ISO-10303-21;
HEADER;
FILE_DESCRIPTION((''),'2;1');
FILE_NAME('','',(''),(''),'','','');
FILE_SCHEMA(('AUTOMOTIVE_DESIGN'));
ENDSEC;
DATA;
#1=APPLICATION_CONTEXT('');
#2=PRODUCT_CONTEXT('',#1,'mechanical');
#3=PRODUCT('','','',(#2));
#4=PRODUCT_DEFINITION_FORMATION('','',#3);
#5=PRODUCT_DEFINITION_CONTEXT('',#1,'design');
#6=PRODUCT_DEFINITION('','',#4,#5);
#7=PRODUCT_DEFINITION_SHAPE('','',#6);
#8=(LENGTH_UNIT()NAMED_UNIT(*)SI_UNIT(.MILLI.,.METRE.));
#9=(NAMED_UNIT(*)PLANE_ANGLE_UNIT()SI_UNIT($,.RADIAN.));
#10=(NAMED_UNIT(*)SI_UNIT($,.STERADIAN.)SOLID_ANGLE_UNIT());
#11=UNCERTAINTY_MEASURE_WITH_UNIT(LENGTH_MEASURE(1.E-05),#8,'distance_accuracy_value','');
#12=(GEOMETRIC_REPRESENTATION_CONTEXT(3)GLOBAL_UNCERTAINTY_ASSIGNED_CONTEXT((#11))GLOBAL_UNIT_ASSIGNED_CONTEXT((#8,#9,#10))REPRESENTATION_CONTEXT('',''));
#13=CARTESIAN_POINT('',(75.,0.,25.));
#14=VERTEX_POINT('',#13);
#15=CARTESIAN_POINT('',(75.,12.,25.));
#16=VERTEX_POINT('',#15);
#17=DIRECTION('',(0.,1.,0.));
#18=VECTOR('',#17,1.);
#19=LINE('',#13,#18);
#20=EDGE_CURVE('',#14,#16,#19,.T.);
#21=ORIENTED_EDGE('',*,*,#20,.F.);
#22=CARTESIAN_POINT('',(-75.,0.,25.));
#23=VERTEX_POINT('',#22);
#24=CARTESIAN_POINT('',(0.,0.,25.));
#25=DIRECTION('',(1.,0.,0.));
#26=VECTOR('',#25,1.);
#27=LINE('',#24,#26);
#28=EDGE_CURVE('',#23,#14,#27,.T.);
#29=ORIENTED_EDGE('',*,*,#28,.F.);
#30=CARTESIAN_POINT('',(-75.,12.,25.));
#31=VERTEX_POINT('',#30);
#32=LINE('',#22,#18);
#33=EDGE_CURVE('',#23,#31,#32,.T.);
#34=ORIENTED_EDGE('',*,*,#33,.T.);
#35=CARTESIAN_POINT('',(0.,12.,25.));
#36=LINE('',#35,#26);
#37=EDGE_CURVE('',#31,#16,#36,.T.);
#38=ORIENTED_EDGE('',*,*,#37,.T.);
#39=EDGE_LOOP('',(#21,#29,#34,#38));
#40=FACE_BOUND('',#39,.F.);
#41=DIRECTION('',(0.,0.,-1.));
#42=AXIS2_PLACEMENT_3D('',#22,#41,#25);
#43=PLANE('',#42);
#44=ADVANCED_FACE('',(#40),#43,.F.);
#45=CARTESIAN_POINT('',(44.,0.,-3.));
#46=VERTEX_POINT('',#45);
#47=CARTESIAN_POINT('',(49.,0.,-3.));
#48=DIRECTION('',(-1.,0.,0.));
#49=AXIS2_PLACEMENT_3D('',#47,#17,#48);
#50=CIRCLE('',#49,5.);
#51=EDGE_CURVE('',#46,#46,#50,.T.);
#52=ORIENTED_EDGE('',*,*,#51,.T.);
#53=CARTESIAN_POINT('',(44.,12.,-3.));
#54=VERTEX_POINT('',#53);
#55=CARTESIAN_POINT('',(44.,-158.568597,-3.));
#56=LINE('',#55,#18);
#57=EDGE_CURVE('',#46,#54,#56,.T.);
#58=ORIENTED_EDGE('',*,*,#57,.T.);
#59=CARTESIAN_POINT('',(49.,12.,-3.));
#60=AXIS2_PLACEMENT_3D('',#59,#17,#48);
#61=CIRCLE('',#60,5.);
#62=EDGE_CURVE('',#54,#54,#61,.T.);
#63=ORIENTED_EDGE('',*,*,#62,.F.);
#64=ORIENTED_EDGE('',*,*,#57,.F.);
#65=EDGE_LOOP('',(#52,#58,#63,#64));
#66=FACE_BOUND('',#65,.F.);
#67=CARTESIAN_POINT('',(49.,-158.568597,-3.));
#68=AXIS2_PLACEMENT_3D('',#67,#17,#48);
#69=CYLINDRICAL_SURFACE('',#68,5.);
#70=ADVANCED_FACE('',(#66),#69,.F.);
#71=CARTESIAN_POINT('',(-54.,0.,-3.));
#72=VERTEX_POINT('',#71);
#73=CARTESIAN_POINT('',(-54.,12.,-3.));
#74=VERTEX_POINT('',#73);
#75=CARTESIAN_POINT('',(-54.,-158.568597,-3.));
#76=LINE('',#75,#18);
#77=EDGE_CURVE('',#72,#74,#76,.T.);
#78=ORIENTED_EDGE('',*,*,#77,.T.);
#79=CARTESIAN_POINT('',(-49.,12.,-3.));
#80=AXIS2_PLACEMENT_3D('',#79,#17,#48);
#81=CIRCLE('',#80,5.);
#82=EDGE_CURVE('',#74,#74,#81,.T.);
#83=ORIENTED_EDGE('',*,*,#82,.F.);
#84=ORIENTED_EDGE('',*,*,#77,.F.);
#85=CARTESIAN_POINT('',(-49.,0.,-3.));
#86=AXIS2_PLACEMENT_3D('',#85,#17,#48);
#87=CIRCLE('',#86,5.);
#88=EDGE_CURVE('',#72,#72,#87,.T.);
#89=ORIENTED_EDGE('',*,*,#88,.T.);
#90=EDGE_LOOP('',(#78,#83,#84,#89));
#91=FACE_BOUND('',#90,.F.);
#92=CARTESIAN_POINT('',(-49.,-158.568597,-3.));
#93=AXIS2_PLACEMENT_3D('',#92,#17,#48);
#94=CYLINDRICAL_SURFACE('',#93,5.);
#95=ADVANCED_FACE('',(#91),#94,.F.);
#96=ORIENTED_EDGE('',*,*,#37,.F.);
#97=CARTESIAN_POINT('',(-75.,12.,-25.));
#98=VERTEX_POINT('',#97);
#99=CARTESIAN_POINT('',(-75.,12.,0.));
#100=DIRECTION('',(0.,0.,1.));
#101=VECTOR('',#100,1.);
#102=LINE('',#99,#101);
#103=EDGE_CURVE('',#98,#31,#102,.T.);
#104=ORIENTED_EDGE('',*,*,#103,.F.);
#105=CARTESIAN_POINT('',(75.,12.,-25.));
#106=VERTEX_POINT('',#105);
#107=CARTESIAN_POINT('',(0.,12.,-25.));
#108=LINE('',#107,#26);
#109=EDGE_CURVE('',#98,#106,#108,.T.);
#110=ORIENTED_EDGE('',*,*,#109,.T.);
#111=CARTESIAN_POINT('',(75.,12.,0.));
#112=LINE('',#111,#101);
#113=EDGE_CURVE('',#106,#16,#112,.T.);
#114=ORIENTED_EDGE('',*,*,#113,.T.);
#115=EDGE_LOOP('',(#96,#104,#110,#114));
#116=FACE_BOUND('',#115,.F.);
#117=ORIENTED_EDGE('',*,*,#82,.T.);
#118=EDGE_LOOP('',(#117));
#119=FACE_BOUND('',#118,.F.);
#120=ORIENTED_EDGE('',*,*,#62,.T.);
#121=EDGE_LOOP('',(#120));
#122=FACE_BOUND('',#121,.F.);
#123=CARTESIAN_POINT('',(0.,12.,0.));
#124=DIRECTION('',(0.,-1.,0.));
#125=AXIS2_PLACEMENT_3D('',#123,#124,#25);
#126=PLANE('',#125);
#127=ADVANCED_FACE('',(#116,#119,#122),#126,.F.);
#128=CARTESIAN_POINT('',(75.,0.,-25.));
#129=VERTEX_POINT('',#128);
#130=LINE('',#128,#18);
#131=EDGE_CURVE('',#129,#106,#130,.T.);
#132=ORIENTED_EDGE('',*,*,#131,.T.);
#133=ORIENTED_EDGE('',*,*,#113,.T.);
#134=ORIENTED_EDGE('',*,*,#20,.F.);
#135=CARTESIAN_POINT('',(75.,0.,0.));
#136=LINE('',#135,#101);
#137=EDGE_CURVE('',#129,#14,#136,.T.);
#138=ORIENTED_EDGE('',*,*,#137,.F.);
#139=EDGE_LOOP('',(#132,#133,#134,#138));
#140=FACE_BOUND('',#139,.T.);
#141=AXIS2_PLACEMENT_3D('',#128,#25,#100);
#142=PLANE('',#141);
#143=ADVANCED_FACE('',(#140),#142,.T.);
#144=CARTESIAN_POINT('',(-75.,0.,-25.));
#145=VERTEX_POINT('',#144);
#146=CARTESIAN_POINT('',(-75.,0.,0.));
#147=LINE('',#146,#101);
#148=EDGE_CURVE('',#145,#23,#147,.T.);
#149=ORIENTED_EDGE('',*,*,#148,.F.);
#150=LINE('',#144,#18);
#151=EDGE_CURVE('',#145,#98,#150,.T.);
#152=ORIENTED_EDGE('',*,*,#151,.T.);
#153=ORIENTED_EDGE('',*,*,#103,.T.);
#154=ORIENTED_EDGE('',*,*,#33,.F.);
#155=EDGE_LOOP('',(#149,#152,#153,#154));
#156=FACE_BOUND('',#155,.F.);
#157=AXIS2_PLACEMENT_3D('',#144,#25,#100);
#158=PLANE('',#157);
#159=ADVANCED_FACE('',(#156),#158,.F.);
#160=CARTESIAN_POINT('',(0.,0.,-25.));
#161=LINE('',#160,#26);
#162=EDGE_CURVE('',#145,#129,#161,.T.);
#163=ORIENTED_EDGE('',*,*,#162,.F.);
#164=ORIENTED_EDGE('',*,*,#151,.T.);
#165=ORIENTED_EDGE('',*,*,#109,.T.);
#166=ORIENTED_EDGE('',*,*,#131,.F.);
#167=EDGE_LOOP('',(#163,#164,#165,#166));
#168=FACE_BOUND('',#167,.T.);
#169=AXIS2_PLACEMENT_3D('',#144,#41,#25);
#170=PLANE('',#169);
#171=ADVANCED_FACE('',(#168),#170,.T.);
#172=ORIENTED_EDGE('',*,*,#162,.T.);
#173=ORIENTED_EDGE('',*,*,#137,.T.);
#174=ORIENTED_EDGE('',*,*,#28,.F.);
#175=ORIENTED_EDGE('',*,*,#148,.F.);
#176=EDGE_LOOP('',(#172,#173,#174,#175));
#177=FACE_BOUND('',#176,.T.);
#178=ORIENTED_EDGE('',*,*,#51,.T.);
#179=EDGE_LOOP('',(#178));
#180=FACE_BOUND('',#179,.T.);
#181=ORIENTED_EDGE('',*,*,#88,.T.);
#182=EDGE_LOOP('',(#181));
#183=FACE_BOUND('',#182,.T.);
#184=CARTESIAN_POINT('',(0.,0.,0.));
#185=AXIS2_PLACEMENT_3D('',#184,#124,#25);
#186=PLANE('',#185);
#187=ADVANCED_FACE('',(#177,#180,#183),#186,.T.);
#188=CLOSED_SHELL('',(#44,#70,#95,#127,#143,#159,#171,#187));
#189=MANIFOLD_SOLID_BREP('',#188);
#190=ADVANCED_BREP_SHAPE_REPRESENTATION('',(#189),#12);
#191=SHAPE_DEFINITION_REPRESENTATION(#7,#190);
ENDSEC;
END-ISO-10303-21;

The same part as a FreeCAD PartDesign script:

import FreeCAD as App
import Part
import Sketcher
from FreeCAD import Vector
Q = App.Units.Quantity


def add_polygon(sketch, points):
    """Adds a closed chain of lines whose ends are joined by coincident constraints."""
    first, n = sketch.GeometryCount, len(points)
    for a, b in zip(points, points[1:] + points[:1]):
        sketch.addGeometry(Part.LineSegment(App.Vector(*a, 0), App.Vector(*b, 0)), False)
    for i in range(n):
        sketch.addConstraint(Sketcher.Constraint("Coincident", first + i, 2, first + (i + 1) % n, 1))

doc = App.newDocument("Part")
body = doc.addObject("PartDesign::Body", "Body")

sketch1 = body.newObject("Sketcher::SketchObject", "Sketch")
sketch1.AttachmentSupport = (doc.getObject("XZ_Plane"), [""])
sketch1.MapMode = "FlatFace"
add_polygon(sketch1, [(-75, 25), (-75, -25), (75, -25), (75, 25)])
sketch1.addConstraint(Sketcher.Constraint("Vertical", 0))
sketch1.addConstraint(Sketcher.Constraint("Horizontal", 1))
sketch1.addConstraint(Sketcher.Constraint("Vertical", 2))
sketch1.addConstraint(Sketcher.Constraint("Horizontal", 3))
sketch1.addConstraint(Sketcher.Constraint("Symmetric", 0, 2, 2, 2, -1, 1))
sketch1.addConstraint(Sketcher.Constraint("DistanceX", 1, 1, 1, 2, Q("150 mm")))
sketch1.addConstraint(Sketcher.Constraint("DistanceY", 0, 2, 0, 1, Q("50 mm")))
pad1 = body.newObject("PartDesign::Pad", "Pad")
pad1.Profile = sketch1
pad1.Length = 12
pad1.Reversed = True

sketch2 = body.newObject("Sketcher::SketchObject", "Sketch001")
sketch2.AttachmentSupport = (doc.getObject("XZ_Plane"), [""])
sketch2.MapMode = "FlatFace"
sketch2.addGeometry(Part.Circle(Vector(-49, -3, 0), Vector(0, 0, 1), 5), False)
sketch2.addGeometry(Part.Circle(Vector(49, -3, 0), Vector(0, 0, 1), 5), False)
sketch2.addConstraint(Sketcher.Constraint("Equal", 0, 1))
sketch2.addConstraint(Sketcher.Constraint("Symmetric", 0, 3, 1, 3, -2))
sketch2.addConstraint(Sketcher.Constraint("Diameter", 0, Q("10 mm")))
sketch2.addConstraint(Sketcher.Constraint("DistanceX", 0, 3, -1, 1, Q("49 mm")))
sketch2.addConstraint(Sketcher.Constraint("DistanceY", 0, 3, -1, 1, Q("3 mm")))
doc.recompute()
hole = body.newObject("PartDesign::Hole", "Hole")
hole.Profile = sketch2
hole.ThreadType = "None"
hole.Diameter = 10
hole.DepthType = "ThroughAll"

doc.recompute()
